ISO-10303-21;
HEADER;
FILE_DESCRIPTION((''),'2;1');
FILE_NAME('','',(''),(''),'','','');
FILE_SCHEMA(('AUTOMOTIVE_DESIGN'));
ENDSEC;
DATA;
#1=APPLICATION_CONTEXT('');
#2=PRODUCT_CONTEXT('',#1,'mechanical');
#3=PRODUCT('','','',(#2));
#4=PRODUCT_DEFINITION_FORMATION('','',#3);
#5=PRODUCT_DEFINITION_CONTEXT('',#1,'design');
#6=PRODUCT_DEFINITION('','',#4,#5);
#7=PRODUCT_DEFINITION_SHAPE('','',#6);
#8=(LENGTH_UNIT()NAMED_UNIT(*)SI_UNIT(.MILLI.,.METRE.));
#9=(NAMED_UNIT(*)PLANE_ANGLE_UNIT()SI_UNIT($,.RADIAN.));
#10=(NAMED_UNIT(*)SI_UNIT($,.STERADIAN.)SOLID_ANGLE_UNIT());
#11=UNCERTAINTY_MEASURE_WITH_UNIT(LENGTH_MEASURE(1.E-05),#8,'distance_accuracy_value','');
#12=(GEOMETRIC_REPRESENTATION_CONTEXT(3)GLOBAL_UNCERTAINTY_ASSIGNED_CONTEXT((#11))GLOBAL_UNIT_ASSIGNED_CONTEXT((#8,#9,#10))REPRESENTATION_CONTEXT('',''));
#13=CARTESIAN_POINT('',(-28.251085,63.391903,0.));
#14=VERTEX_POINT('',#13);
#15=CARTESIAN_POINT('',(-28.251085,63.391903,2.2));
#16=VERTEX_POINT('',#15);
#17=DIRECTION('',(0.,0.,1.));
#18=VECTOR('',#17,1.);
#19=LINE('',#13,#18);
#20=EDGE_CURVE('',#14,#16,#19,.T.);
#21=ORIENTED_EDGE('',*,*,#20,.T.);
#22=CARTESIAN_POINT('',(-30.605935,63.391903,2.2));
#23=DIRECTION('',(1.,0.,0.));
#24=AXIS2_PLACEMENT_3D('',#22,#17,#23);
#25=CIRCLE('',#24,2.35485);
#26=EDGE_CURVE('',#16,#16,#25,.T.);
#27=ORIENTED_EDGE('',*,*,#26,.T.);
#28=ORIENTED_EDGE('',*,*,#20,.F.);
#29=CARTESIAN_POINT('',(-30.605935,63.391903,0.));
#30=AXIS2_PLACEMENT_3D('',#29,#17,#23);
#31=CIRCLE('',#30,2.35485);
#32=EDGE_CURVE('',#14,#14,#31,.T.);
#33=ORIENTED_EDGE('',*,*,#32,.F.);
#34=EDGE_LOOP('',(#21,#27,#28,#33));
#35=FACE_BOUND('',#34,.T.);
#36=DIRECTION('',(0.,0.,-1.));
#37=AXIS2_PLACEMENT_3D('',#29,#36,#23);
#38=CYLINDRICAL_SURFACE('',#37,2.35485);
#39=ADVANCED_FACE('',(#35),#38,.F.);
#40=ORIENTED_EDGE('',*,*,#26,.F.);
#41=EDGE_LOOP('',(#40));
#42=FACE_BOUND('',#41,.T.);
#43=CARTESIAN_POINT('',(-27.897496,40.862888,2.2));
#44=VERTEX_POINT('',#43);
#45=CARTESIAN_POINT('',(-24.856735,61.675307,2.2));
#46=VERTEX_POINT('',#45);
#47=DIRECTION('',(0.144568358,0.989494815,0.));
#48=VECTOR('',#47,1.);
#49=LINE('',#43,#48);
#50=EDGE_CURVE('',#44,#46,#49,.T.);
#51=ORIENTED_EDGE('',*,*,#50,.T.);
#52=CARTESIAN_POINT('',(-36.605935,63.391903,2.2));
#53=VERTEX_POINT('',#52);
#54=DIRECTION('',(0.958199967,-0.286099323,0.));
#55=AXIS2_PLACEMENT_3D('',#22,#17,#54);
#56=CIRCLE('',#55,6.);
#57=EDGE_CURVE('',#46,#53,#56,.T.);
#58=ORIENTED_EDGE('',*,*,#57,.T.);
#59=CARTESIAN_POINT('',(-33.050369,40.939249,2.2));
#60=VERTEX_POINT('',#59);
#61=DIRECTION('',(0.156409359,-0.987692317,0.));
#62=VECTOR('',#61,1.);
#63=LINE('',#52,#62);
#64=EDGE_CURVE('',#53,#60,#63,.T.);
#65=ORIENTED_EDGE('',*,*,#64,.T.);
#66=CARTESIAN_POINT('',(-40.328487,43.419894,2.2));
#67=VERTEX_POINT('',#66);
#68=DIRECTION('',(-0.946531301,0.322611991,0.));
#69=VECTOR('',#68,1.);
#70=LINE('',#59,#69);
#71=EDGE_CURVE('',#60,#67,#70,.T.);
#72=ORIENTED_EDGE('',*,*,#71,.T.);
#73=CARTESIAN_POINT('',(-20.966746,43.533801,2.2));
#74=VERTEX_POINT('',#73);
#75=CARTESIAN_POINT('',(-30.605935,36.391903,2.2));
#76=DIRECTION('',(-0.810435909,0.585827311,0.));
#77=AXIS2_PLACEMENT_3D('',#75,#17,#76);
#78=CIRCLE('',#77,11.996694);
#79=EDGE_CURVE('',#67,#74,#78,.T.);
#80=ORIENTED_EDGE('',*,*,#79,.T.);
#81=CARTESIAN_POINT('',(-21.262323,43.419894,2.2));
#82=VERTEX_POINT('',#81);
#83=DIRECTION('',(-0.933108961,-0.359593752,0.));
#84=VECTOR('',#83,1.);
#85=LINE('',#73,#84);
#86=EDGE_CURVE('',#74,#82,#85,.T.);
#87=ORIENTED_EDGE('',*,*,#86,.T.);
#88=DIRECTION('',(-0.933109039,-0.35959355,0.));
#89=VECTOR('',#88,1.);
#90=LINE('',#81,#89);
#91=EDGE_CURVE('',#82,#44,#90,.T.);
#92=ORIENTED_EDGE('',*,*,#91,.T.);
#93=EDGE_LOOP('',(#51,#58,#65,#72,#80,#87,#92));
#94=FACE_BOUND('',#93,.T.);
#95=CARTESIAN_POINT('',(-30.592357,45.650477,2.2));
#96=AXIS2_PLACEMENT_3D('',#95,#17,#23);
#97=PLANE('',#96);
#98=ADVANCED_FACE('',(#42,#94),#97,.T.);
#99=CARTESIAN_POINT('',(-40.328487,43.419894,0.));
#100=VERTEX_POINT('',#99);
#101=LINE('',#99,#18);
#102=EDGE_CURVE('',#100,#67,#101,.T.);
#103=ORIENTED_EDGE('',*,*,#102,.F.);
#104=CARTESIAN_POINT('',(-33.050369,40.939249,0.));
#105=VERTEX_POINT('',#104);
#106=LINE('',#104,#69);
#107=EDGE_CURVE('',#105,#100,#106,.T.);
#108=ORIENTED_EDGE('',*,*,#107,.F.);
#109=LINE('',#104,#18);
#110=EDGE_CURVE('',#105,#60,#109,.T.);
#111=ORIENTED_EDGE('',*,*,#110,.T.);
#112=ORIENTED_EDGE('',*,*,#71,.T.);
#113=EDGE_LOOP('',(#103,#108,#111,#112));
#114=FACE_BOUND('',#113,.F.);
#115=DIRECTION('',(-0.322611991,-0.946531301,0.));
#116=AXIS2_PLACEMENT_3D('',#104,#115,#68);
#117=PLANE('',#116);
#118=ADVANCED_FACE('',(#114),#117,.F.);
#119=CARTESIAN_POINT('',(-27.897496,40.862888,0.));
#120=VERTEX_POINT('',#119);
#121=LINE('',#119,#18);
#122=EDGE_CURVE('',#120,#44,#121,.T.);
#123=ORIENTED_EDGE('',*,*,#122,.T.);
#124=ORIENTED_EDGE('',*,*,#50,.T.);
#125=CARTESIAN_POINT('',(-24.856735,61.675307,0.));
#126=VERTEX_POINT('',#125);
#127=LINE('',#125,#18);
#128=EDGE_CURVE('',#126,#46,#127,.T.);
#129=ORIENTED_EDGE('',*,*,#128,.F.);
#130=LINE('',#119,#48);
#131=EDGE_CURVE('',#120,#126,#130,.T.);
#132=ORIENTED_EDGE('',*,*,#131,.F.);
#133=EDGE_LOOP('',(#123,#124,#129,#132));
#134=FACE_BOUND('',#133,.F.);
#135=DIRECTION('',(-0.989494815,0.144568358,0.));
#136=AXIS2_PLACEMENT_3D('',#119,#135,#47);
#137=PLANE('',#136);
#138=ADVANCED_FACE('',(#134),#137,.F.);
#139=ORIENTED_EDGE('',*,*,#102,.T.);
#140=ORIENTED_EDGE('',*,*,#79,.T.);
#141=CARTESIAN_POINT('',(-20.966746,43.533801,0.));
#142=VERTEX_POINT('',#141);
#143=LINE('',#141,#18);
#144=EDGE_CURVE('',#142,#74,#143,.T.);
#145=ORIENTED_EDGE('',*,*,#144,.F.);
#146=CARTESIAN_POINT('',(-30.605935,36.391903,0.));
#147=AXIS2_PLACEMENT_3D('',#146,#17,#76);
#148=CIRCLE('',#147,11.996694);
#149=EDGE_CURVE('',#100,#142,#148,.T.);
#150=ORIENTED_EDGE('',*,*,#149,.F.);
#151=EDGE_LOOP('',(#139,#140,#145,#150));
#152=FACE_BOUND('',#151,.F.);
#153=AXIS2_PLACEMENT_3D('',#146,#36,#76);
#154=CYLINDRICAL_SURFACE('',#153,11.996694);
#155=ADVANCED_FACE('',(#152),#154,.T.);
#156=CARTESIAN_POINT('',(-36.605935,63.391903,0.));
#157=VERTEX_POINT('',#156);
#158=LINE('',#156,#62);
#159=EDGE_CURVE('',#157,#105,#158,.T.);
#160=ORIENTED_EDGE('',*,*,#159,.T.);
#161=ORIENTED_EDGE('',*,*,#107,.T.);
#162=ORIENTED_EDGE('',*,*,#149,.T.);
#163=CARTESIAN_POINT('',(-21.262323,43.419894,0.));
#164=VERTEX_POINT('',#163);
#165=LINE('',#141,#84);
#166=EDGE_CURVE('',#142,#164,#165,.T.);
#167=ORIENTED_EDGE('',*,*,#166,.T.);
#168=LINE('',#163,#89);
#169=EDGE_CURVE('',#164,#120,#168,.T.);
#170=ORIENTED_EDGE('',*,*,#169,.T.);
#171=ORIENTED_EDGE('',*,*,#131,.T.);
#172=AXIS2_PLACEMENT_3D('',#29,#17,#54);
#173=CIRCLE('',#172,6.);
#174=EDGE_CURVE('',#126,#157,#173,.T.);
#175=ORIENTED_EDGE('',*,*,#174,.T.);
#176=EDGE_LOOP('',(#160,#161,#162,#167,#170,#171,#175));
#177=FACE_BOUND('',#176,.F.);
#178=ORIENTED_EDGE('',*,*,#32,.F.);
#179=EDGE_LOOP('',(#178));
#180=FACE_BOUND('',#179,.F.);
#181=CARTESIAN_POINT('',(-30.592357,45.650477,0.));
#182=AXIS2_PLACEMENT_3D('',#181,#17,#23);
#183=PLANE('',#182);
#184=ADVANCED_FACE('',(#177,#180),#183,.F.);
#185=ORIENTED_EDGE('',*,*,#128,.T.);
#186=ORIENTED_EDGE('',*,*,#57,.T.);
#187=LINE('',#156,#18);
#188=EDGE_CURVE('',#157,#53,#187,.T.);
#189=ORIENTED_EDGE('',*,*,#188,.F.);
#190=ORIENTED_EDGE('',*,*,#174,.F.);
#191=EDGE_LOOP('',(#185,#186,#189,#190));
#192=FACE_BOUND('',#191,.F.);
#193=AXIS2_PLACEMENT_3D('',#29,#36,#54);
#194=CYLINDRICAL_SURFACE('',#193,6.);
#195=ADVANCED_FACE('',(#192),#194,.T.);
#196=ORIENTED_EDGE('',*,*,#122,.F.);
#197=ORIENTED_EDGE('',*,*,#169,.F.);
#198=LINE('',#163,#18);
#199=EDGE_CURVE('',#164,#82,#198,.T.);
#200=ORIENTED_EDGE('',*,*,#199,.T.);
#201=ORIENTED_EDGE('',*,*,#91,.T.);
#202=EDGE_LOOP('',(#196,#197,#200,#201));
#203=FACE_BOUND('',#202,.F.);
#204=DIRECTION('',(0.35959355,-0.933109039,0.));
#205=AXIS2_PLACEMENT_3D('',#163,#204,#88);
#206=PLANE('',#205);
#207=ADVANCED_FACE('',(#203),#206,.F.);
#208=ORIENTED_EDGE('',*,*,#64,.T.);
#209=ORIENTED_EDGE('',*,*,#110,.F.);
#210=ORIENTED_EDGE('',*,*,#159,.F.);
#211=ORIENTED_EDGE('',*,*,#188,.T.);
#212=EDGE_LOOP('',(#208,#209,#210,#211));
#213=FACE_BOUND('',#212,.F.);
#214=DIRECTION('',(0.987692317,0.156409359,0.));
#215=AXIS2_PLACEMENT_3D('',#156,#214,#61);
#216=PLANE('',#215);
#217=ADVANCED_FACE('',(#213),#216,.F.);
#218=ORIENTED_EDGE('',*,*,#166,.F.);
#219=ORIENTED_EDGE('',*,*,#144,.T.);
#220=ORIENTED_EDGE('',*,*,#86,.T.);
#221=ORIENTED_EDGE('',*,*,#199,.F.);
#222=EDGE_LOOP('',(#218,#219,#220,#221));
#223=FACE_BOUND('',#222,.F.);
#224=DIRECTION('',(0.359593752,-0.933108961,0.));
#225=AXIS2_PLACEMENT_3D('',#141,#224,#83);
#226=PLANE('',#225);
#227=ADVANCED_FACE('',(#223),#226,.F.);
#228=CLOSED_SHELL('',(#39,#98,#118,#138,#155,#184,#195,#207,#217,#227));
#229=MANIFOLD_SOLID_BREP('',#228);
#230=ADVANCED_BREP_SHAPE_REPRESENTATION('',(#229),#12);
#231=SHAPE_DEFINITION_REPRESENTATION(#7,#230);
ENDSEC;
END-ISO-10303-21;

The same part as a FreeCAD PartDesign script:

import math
import FreeCAD as App
import Part
import Sketcher
from FreeCAD import Vector

doc = App.newDocument("Part")
params = doc.addObject("Spreadsheet::Sheet", "Params")
for row, (alias, value) in enumerate([
    ("sketch1_radius", "6 mm"),
    ("pad1_length", "2.2 mm"),
], start=1):
    params.set(f"A{row}", alias)
    params.set(f"B{row}", "=" + value)
    params.setAlias(f"B{row}", alias)

body = doc.addObject("PartDesign::Body", "Body")

# Sketch on XY plane
sketch1 = body.newObject("Sketcher::SketchObject", "Sketch")
sketch1.AttachmentSupport = (doc.getObject("XY_Plane"), [""])
sketch1.MapMode = "FlatFace"
sketch1.addGeometry([
    Part.LineSegment(Vector(-27.9, 40.86, 0), Vector(-24.86, 61.68, 0)),  # 0
    Part.ArcOfCircle(Part.Circle(Vector(-30.61, 63.39, 0), Vector(0, 0, 1), 6), math.radians(-17), math.radians(180)),  # 1
    Part.LineSegment(Vector(-36.61, 63.39, 0), Vector(-33.05, 40.94, 0)),  # 2
    Part.LineSegment(Vector(-33.05, 40.94, 0), Vector(-40.33, 43.42, 0)),  # 3
    Part.ArcOfCircle(Part.Circle(Vector(-30.61, 36.39, 0), Vector(0, 0, 1), 12), math.radians(144), math.radians(397)),  # 4
    Part.LineSegment(Vector(-20.97, 43.53, 0), Vector(-21.26, 43.42, 0)),  # 5
    Part.LineSegment(Vector(-21.26, 43.42, 0), Vector(-27.9, 40.86, 0)),  # 6
    Part.Circle(Vector(-30.61, 63.39, 0), Vector(0, 0, 1), 2.35),  # 7
], False)
sketch1.addConstraint([
    Sketcher.Constraint("Coincident", 0, 2, 1, 1),
    Sketcher.Constraint("Coincident", 1, 2, 2, 1),
    Sketcher.Constraint("Coincident", 2, 2, 3, 1),
    Sketcher.Constraint("Coincident", 3, 2, 4, 1),
    Sketcher.Constraint("Coincident", 4, 2, 5, 1),
    Sketcher.Constraint("Coincident", 5, 2, 6, 1),
    Sketcher.Constraint("Coincident", 6, 2, 0, 1),
    Sketcher.Constraint("Coincident", 7, 3, 1, 3),
    Sketcher.Constraint("Parallel", 5, 6),
    Sketcher.Constraint("Horizontal", 7, 3, 1, 2),
    Sketcher.Constraint("Horizontal", 3, 2, 5, 2),
    Sketcher.Constraint("Vertical", 1, 3, 4, 3),
    Sketcher.Constraint("Radius", 1, 6.0),
    Sketcher.Constraint("DistanceY", 4, 3, 1, 3, 27.0),
    Sketcher.Constraint("Diameter", 7, 4.7097),
    Sketcher.Constraint("Radius", 4, 11.996694),
    Sketcher.Constraint("DistanceY", -1, 1, 4, 2, 43.533801),
    Sketcher.Constraint("DistanceX", 1, 3, 0, 2, 5.7492),
    Sketcher.Constraint("DistanceY", 4, 3, 4, 2, 7.141898),
    Sketcher.Constraint("Distance", 0, 21.033379),
    Sketcher.Constraint("DistanceX", 2, 2, -1, 1, 33.050369),
    Sketcher.Constraint("DistanceY", -1, 1, 2, 2, 40.939249),
    Sketcher.Constraint("DistanceX", 3, 2, 4, 3, 9.722552),
    Sketcher.Constraint("DistanceY", 6, 2, 2, 2, 0.076361),
    Sketcher.Constraint("Distance", 2, 22.732438),
])
sketch1.setExpression("Constraints[12]", "Params.sketch1_radius")
pad1 = body.newObject("PartDesign::Pad", "Pad")
pad1.Profile = sketch1
pad1.setExpression("Length", "Params.pad1_length")

doc.recompute()
